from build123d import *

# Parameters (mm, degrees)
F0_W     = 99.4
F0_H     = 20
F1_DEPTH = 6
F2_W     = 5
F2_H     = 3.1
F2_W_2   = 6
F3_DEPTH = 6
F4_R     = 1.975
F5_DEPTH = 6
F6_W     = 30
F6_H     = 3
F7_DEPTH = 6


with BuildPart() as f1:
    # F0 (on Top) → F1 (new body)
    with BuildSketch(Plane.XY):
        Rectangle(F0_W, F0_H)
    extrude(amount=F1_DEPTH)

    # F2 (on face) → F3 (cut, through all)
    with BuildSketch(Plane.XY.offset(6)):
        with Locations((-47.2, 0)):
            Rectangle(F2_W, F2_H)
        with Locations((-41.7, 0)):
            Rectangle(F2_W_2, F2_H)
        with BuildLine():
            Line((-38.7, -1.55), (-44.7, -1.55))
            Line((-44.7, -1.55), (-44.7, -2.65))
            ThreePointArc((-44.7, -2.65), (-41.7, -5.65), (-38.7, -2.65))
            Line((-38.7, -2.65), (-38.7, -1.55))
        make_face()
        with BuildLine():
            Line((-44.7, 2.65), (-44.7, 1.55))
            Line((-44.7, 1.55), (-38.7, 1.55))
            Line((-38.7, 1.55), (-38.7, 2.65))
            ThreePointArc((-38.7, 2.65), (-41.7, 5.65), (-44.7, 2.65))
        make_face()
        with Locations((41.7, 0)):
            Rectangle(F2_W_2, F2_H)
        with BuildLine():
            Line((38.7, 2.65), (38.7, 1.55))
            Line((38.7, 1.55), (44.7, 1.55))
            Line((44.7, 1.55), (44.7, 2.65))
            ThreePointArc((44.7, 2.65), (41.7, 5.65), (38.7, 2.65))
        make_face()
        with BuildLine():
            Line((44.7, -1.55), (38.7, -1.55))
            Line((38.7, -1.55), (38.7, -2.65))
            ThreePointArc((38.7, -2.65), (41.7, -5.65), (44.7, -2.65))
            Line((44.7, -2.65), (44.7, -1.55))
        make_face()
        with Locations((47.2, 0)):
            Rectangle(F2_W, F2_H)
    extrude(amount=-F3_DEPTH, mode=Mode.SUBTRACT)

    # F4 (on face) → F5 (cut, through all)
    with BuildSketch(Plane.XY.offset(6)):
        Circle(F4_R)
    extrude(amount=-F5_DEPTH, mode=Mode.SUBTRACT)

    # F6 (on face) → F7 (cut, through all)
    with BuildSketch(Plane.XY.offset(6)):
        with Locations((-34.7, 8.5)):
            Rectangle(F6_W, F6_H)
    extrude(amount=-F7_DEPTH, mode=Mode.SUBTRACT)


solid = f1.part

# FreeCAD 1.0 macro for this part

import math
import FreeCAD as App
import Part
import Sketcher
from FreeCAD import Vector

doc = App.newDocument("Part")
body = doc.addObject("PartDesign::Body", "Body")

sketch1 = body.newObject("Sketcher::SketchObject", "Sketch")
sketch1.AttachmentSupport = (doc.getObject("XY_Plane"), [""])
sketch1.MapMode = "FlatFace"
sketch1.addGeometry([
    Part.LineSegment(Vector(-50, 10, 0), Vector(-50, -10, 0)),
    Part.LineSegment(Vector(-50, -10, 0), Vector(50, -10, 0)),
    Part.LineSegment(Vector(50, -10, 0), Vector(50, 10, 0)),
    Part.LineSegment(Vector(50, 10, 0), Vector(-50, 10, 0)),
], False)
sketch1.addConstraint([
    Sketcher.Constraint("Coincident", 0, 2, 1, 1),
    Sketcher.Constraint("Coincident", 1, 2, 2, 1),
    Sketcher.Constraint("Coincident", 2, 2, 3, 1),
    Sketcher.Constraint("Coincident", 3, 2, 0, 1),
    Sketcher.Constraint("Vertical", 0),
    Sketcher.Constraint("Horizontal", 1),
    Sketcher.Constraint("Vertical", 2),
    Sketcher.Constraint("Horizontal", 3),
    Sketcher.Constraint("Symmetric", 0, 2, 2, 2, -1, 1),
    Sketcher.Constraint("DistanceY", 0, 2, 0, 1, 20.0),
    Sketcher.Constraint("DistanceX", 1, 1, 1, 2, 99.4),
])
pad1 = body.newObject("PartDesign::Pad", "Pad")
pad1.Profile = sketch1
pad1.Length = 6

sketch2 = body.newObject("Sketcher::SketchObject", "Sketch001")
sketch2.AttachmentSupport = (doc.getObject("XY_Plane"), [""])
sketch2.MapMode = "FlatFace"
sketch2.AttachmentOffset = App.Placement(Vector(0, 0, 6), App.Rotation())
sketch2.addGeometry([
    Part.LineSegment(Vector(-49.7, 1.6, 0), Vector(-49.7, -1.6, 0)),
    Part.LineSegment(Vector(-49.7, -1.6, 0), Vector(-44.7, -1.6, 0)),
    Part.LineSegment(Vector(-44.7, -1.6, 0), Vector(-44.7, -2.6, 0)),
    Part.ArcOfCircle(Part.Circle(Vector(-41.7, -2.6, 0), Vector(0, 0, 1), 3), math.radians(180), math.radians(360)),
    Part.LineSegment(Vector(-38.7, -2.6, 0), Vector(-38.7, 2.6, 0)),
    Part.ArcOfCircle(Part.Circle(Vector(-41.7, 2.6, 0), Vector(0, 0, 1), 3), math.radians(0), math.radians(180)),
    Part.LineSegment(Vector(-44.7, 2.6, 0), Vector(-44.7, 1.6, 0)),
    Part.LineSegment(Vector(-44.7, 1.6, 0), Vector(-49.7, 1.6, 0)),
    Part.ArcOfCircle(Part.Circle(Vector(41.7, 2.6, 0), Vector(0, 0, 1), 3), math.radians(0), math.radians(180)),
    Part.LineSegment(Vector(38.7, 2.6, 0), Vector(38.7, -2.6, 0)),
    Part.ArcOfCircle(Part.Circle(Vector(41.7, -2.6, 0), Vector(0, 0, 1), 3), math.radians(180), math.radians(360)),
    Part.LineSegment(Vector(44.7, -2.6, 0), Vector(44.7, -1.6, 0)),
    Part.LineSegment(Vector(44.7, -1.6, 0), Vector(49.7, -1.6, 0)),
    Part.LineSegment(Vector(49.7, -1.6, 0), Vector(49.7, 1.6, 0)),
    Part.LineSegment(Vector(49.7, 1.6, 0), Vector(44.7, 1.6, 0)),
    Part.LineSegment(Vector(44.7, 1.6, 0), Vector(44.7, 2.6, 0)),
], False)
sketch2.addConstraint([
    Sketcher.Constraint("Coincident", 0, 2, 1, 1),
    Sketcher.Constraint("Coincident", 1, 2, 2, 1),
    Sketcher.Constraint("Tangent", 2, 2, 3, 1),
    Sketcher.Constraint("Tangent", 3, 2, 4, 1),
    Sketcher.Constraint("Tangent", 4, 2, 5, 1),
    Sketcher.Constraint("Tangent", 5, 2, 6, 1),
    Sketcher.Constraint("Coincident", 6, 2, 7, 1),
    Sketcher.Constraint("Coincident", 7, 2, 0, 1),
    Sketcher.Constraint("Tangent", 8, 2, 9, 1),
    Sketcher.Constraint("Tangent", 9, 2, 10, 1),
    Sketcher.Constraint("Tangent", 10, 2, 11, 1),
    Sketcher.Constraint("Coincident", 11, 2, 12, 1),
    Sketcher.Constraint("Coincident", 12, 2, 13, 1),
    Sketcher.Constraint("Coincident", 13, 2, 14, 1),
    Sketcher.Constraint("Coincident", 14, 2, 15, 1),
    Sketcher.Constraint("Tangent", 15, 2, 8, 1),
    Sketcher.Constraint("Vertical", 0),
    Sketcher.Constraint("Horizontal", 1),
    Sketcher.Constraint("Vertical", 2),
    Sketcher.Constraint("Vertical", 4),
    Sketcher.Constraint("Vertical", 6),
    Sketcher.Constraint("Horizontal", 7),
    Sketcher.Constraint("Vertical", 9),
    Sketcher.Constraint("Vertical", 11),
    Sketcher.Constraint("Horizontal", 12),
    Sketcher.Constraint("Vertical", 13),
    Sketcher.Constraint("Horizontal", 14),
    Sketcher.Constraint("Vertical", 15),
    Sketcher.Constraint("Equal", 3, 5),
    Sketcher.Constraint("Equal", 5, 8),
    Sketcher.Constraint("Equal", 8, 10),
    Sketcher.Constraint("Symmetric", 3, 3, 8, 3, -1, 1),
    Sketcher.Constraint("Symmetric", 7, 2, 12, 2, -1, 1),
    Sketcher.Constraint("Horizontal", 5, 3, 8, 3),
    Sketcher.Constraint("Horizontal", 3, 3, 10, 3),
    Sketcher.Constraint("Horizontal", 1, 2, 11, 2),
    Sketcher.Constraint("Horizontal", 7, 2, 13, 2),
    Sketcher.Constraint("Radius", 3, 3.0),
    Sketcher.Constraint("DistanceX", 1, 1, 1, 2, 5.0),
    Sketcher.Constraint("DistanceY", 0, 2, 0, 1, 3.1),
    Sketcher.Constraint("DistanceY", 2, 2, 2, 1, 1.1),
    Sketcher.Constraint("DistanceX", 3, 3, -1, 1, 41.7),
])
pocket1 = body.newObject("PartDesign::Pocket", "Pocket")
pocket1.Profile = sketch2
pocket1.Type = "ThroughAll"

sketch3 = body.newObject("Sketcher::SketchObject", "Sketch002")
sketch3.AttachmentSupport = (doc.getObject("XY_Plane"), [""])
sketch3.MapMode = "FlatFace"
sketch3.AttachmentOffset = App.Placement(Vector(0, 0, 6), App.Rotation())
sketch3.addGeometry(Part.Circle(Vector(0, 0, 0), Vector(0, 0, 1), 2), False)
sketch3.addConstraint([
    Sketcher.Constraint("Coincident", 0, 3, -1, 1),
    Sketcher.Constraint("Diameter", 0, 3.95),
])
pocket2 = body.newObject("PartDesign::Pocket", "Pocket001")
pocket2.Profile = sketch3
pocket2.Type = "ThroughAll"

sketch4 = body.newObject("Sketcher::SketchObject", "Sketch003")
sketch4.AttachmentSupport = (doc.getObject("XY_Plane"), [""])
sketch4.MapMode = "FlatFace"
sketch4.AttachmentOffset = App.Placement(Vector(0, 0, 6), App.Rotation())
sketch4.addGeometry([
    Part.LineSegment(Vector(-49.7, 10, 0), Vector(-49.7, 7, 0)),
    Part.LineSegment(Vector(-49.7, 7, 0), Vector(-19.7, 7, 0)),
    Part.LineSegment(Vector(-19.7, 7, 0), Vector(-19.7, 10, 0)),
    Part.LineSegment(Vector(-19.7, 10, 0), Vector(-49.7, 10, 0)),
], False)
sketch4.addConstraint([
    Sketcher.Constraint("Coincident", 0, 2, 1, 1),
    Sketcher.Constraint("Coincident", 1, 2, 2, 1),
    Sketcher.Constraint("Coincident", 2, 2, 3, 1),
    Sketcher.Constraint("Coincident", 3, 2, 0, 1),
    Sketcher.Constraint("Vertical", 0),
    Sketcher.Constraint("Horizontal", 1),
    Sketcher.Constraint("Vertical", 2),
    Sketcher.Constraint("Horizontal", 3),
    Sketcher.Constraint("DistanceX", 1, 1, 1, 2, 30.0),
    Sketcher.Constraint("DistanceY", 0, 2, 0, 1, 3.0),
    Sketcher.Constraint("DistanceY", -1, 1, 0, 2, 7.0),
    Sketcher.Constraint("DistanceX", 0, 2, -1, 1, 49.7),
])
pocket3 = body.newObject("PartDesign::Pocket", "Pocket002")
pocket3.Profile = sketch4
pocket3.Type = "ThroughAll"

doc.recompute()
